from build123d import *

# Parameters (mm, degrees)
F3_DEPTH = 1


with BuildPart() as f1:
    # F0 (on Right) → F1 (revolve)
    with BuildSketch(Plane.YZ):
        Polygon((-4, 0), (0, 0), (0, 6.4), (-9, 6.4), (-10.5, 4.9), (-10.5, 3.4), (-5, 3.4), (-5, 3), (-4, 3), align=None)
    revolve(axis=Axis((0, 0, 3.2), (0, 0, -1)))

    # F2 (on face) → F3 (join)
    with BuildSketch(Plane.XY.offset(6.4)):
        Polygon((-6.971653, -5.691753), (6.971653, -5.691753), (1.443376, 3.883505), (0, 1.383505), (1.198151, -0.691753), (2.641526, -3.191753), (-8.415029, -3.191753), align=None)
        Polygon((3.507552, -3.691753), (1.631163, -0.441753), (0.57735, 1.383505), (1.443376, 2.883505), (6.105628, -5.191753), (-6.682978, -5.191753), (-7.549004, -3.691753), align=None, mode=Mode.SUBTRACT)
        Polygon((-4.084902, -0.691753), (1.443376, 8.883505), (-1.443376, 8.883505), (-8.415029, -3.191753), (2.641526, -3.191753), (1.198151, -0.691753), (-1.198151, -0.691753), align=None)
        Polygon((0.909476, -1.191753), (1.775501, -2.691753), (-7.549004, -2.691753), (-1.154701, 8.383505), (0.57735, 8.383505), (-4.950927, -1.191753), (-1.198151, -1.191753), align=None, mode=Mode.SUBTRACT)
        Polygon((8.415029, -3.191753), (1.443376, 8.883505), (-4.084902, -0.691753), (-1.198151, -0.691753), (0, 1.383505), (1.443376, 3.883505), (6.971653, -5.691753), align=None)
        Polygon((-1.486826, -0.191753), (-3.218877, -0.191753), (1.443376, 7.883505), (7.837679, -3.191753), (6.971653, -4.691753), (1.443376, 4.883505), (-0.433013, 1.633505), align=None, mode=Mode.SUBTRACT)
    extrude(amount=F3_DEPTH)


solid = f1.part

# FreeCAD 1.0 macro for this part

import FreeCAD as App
import Part
import Sketcher

V = App.Vector
Q = App.Units.Quantity

doc = App.newDocument("Part")
body = doc.addObject("PartDesign::Body", "Body")

# Sketch on YZ plane
sketch1 = body.newObject("Sketcher::SketchObject", "Sketch")
sketch1.AttachmentSupport = (doc.getObject("YZ_Plane"), [""])
sketch1.MapMode = "FlatFace"
sketch1.addGeometry([
    Part.LineSegment(V(-4, 0, 0), V(0, 0, 0)),  # 0
    Part.LineSegment(V(0, 0, 0), V(0, 6.4, 0)),  # 1
    Part.LineSegment(V(0, 6.4, 0), V(-9, 6.4, 0)),  # 2
    Part.LineSegment(V(-9, 6.4, 0), V(-10.5, 4.9, 0)),  # 3
    Part.LineSegment(V(-10.5, 4.9, 0), V(-10.5, 3.4, 0)),  # 4
    Part.LineSegment(V(-10.5, 3.4, 0), V(-5, 3.4, 0)),  # 5
    Part.LineSegment(V(-5, 3.4, 0), V(-5, 3, 0)),  # 6
    Part.LineSegment(V(-5, 3, 0), V(-4, 3, 0)),  # 7
    Part.LineSegment(V(-4, 3, 0), V(-4, 0, 0)),  # 8
], False)
sketch1.addConstraint([
    Sketcher.Constraint("Coincident", 0, 2, 1, 1),
    Sketcher.Constraint("Coincident", 1, 2, 2, 1),
    Sketcher.Constraint("Coincident", 2, 2, 3, 1),
    Sketcher.Constraint("Coincident", 3, 2, 4, 1),
    Sketcher.Constraint("Coincident", 4, 2, 5, 1),
    Sketcher.Constraint("Coincident", 5, 2, 6, 1),
    Sketcher.Constraint("Coincident", 6, 2, 7, 1),
    Sketcher.Constraint("Coincident", 7, 2, 8, 1),
    Sketcher.Constraint("Coincident", 8, 2, 0, 1),
    Sketcher.Constraint("Horizontal", 0),
    Sketcher.Constraint("Vertical", 1),
    Sketcher.Constraint("Horizontal", 2),
    Sketcher.Constraint("Vertical", 4),
    Sketcher.Constraint("Horizontal", 5),
    Sketcher.Constraint("Vertical", 6),
    Sketcher.Constraint("Horizontal", 7),
    Sketcher.Constraint("Vertical", 8),
    Sketcher.Constraint("Coincident", 0, 2, -1, 1),
    Sketcher.Constraint("DistanceX", 0, 1, 0, 2, Q("4 mm")),
    Sketcher.Constraint("DistanceX", 2, 2, 2, 1, Q("9 mm")),
    Sketcher.Constraint("DistanceX", 7, 1, 7, 2, Q("1 mm")),
    Sketcher.Constraint("DistanceY", 8, 2, 8, 1, Q("3 mm")),
    Sketcher.Constraint("Angle", 3, Q("-135 deg")),
    Sketcher.Constraint("DistanceX", 5, 1, 5, 2, Q("5.5 mm")),
    Sketcher.Constraint("DistanceY", 1, 1, 1, 2, Q("6.4 mm")),
    Sketcher.Constraint("DistanceY", 4, 2, 4, 1, Q("1.5 mm")),
])
revolution = body.newObject("PartDesign::Revolution", "Revolution")
revolution.Profile = sketch1
revolution.ReferenceAxis = (sketch1, ["V_Axis"])
revolution.Angle = 360

# Sketch on XY plane
sketch2 = body.newObject("Sketcher::SketchObject", "Sketch001")
sketch2.AttachmentSupport = (doc.getObject("XY_Plane"), [""])
sketch2.MapMode = "FlatFace"
sketch2.AttachmentOffset = App.Placement(V(0, 0, 6.4), App.Rotation())
sketch2.addGeometry([
    Part.LineSegment(V(-7, -5.7, 0), V(7, -5.7, 0)),  # 0
    Part.LineSegment(V(7, -5.7, 0), V(8.4, -3.2, 0)),  # 1
    Part.LineSegment(V(8.4, -3.2, 0), V(1.4, 8.9, 0)),  # 2
    Part.LineSegment(V(1.4, 8.9, 0), V(-1.4, 8.9, 0)),  # 3
    Part.LineSegment(V(-1.4, 8.9, 0), V(-8.4, -3.2, 0)),  # 4
    Part.LineSegment(V(-8.4, -3.2, 0), V(-7, -5.7, 0)),  # 5
    Part.LineSegment(V(-7.5, -3.7, 0), V(3.5, -3.7, 0)),  # 6
    Part.LineSegment(V(3.5, -3.7, 0), V(1.6, -0.4, 0)),  # 7
    Part.LineSegment(V(1.6, -0.4, 0), V(0.6, 1.4, 0)),  # 8
    Part.LineSegment(V(0.6, 1.4, 0), V(1.4, 2.9, 0)),  # 9
    Part.LineSegment(V(1.4, 2.9, 0), V(6.1, -5.2, 0)),  # 10
    Part.LineSegment(V(6.1, -5.2, 0), V(-6.7, -5.2, 0)),  # 11
    Part.LineSegment(V(-6.7, -5.2, 0), V(-7.5, -3.7, 0)),  # 12
    Part.LineSegment(V(0, 1.4, 0), V(1.2, -0.7, 0)),  # 13
    Part.LineSegment(V(1.2, -0.7, 0), V(-1.2, -0.7, 0)),  # 14
    Part.LineSegment(V(-1.2, -0.7, 0), V(0, 1.4, 0)),  # 15
    Part.LineSegment(V(-5, -1.2, 0), V(0.9, -1.2, 0)),  # 16
    Part.LineSegment(V(0.9, -1.2, 0), V(1.8, -2.7, 0)),  # 17
    Part.LineSegment(V(1.8, -2.7, 0), V(-7.5, -2.7, 0)),  # 18
    Part.LineSegment(V(-7.5, -2.7, 0), V(-1.2, 8.4, 0)),  # 19
    Part.LineSegment(V(-1.2, 8.4, 0), V(0.6, 8.4, 0)),  # 20
    Part.LineSegment(V(0.6, 8.4, 0), V(-5, -1.2, 0)),  # 21
    Part.LineSegment(V(-0.4, 1.6, 0), V(-1.5, -0.2, 0)),  # 22
    Part.LineSegment(V(-1.5, -0.2, 0), V(-3.2, -0.2, 0)),  # 23
    Part.LineSegment(V(-3.2, -0.2, 0), V(1.4, 7.9, 0)),  # 24
    Part.LineSegment(V(1.4, 7.9, 0), V(7.8, -3.2, 0)),  # 25
    Part.LineSegment(V(7.8, -3.2, 0), V(7, -4.7, 0)),  # 26
    Part.LineSegment(V(7, -4.7, 0), V(1.4, 4.9, 0)),  # 27
    Part.LineSegment(V(1.4, 4.9, 0), V(-0.4, 1.6, 0)),  # 28
], False)
sketch2.addConstraint([
    Sketcher.Constraint("Coincident", 0, 2, 1, 1),
    Sketcher.Constraint("Coincident", 1, 2, 2, 1),
    Sketcher.Constraint("Coincident", 2, 2, 3, 1),
    Sketcher.Constraint("Coincident", 3, 2, 4, 1),
    Sketcher.Constraint("Coincident", 4, 2, 5, 1),
    Sketcher.Constraint("Coincident", 5, 2, 0, 1),
    Sketcher.Constraint("Coincident", 6, 2, 7, 1),
    Sketcher.Constraint("Coincident", 7, 2, 8, 1),
    Sketcher.Constraint("Coincident", 8, 2, 9, 1),
    Sketcher.Constraint("Coincident", 9, 2, 10, 1),
    Sketcher.Constraint("Coincident", 10, 2, 11, 1),
    Sketcher.Constraint("Coincident", 11, 2, 12, 1),
    Sketcher.Constraint("Coincident", 12, 2, 6, 1),
    Sketcher.Constraint("Coincident", 13, 2, 14, 1),
    Sketcher.Constraint("Coincident", 14, 2, 15, 1),
    Sketcher.Constraint("Coincident", 15, 2, 13, 1),
    Sketcher.Constraint("Coincident", 16, 2, 17, 1),
    Sketcher.Constraint("Coincident", 17, 2, 18, 1),
    Sketcher.Constraint("Coincident", 18, 2, 19, 1),
    Sketcher.Constraint("Coincident", 19, 2, 20, 1),
    Sketcher.Constraint("Coincident", 20, 2, 21, 1),
    Sketcher.Constraint("Coincident", 21, 2, 16, 1),
    Sketcher.Constraint("Coincident", 22, 2, 23, 1),
    Sketcher.Constraint("Coincident", 23, 2, 24, 1),
    Sketcher.Constraint("Coincident", 24, 2, 25, 1),
    Sketcher.Constraint("Coincident", 25, 2, 26, 1),
    Sketcher.Constraint("Coincident", 26, 2, 27, 1),
    Sketcher.Constraint("Coincident", 27, 2, 28, 1),
    Sketcher.Constraint("Coincident", 28, 2, 22, 1),
    Sketcher.Constraint("Horizontal", 0),
    Sketcher.Constraint("Horizontal", 3),
    Sketcher.Constraint("Horizontal", 6),
    Sketcher.Constraint("Horizontal", 11),
    Sketcher.Constraint("Horizontal", 14),
    Sketcher.Constraint("Horizontal", 16),
    Sketcher.Constraint("Horizontal", 18),
    Sketcher.Constraint("Horizontal", 20),
    Sketcher.Constraint("Horizontal", 23),
    Sketcher.Constraint("Symmetric", 1, 2, 4, 2, -2),
    Sketcher.Constraint("PointOnObject", 15, 2, -2),
    Sketcher.Constraint("Parallel", 1, 4),
    Sketcher.Constraint("Parallel", 2, 5),
    Sketcher.Constraint("Parallel", 5, 7),
    Sketcher.Constraint("Parallel", 7, 8),
    Sketcher.Constraint("Parallel", 4, 9),
    Sketcher.Constraint("Parallel", 8, 10),
    Sketcher.Constraint("Parallel", 10, 12),
    Sketcher.Constraint("Parallel", 12, 13),
    Sketcher.Constraint("Parallel", 9, 15),
    Sketcher.Constraint("Parallel", 13, 17),
    Sketcher.Constraint("Parallel", 15, 19),
    Sketcher.Constraint("Parallel", 19, 21),
    Sketcher.Constraint("Parallel", 21, 22),
    Sketcher.Constraint("Parallel", 22, 24),
    Sketcher.Constraint("Parallel", 17, 25),
    Sketcher.Constraint("Parallel", 24, 26),
    Sketcher.Constraint("Parallel", 25, 27),
    Sketcher.Constraint("Parallel", 26, 28),
    Sketcher.Constraint("Horizontal", 8, 2, 15, 2),
    Sketcher.Constraint("Horizontal", 4, 2, 25, 2),
    Sketcher.Constraint("Vertical", 2, 2, 9, 2),
    Sketcher.Constraint("Vertical", 12, 2, 18, 2),
    Sketcher.Constraint("Vertical", 8, 2, 20, 2),
    Sketcher.Constraint("Vertical", 9, 2, 24, 2),
    Sketcher.Constraint("Vertical", 0, 2, 26, 2),
    Sketcher.Constraint("Vertical", 24, 2, 27, 2),
    Sketcher.Constraint("Equal", 20, 23),
    Sketcher.Constraint("Equal", 2, 4),
    Sketcher.Constraint("Equal", 9, 12),
    Sketcher.Constraint("Equal", 12, 17),
    Sketcher.Constraint("Equal", 8, 22),
    Sketcher.Constraint("Equal", 10, 24),
    Sketcher.Constraint("Equal", 19, 25),
    Sketcher.Constraint("Equal", 17, 26),
    Sketcher.Constraint("Angle", 1, Q("59.999994 deg")),
    Sketcher.Constraint("DistanceY", 0, 2, 6, 2, Q("2 mm")),
    Sketcher.Constraint("DistanceY", 9, 2, 2, 2, Q("6 mm")),
    Sketcher.Constraint("DistanceY", 10, 2, 1, 2, Q("2 mm")),
    Sketcher.Constraint("DistanceY", 6, 2, 13, 2, Q("3 mm")),
    Sketcher.Constraint("DistanceY", 6, 2, 17, 2, Q("1 mm")),
    Sketcher.Constraint("DistanceY", 15, 2, 19, 2, Q("7 mm")),
    Sketcher.Constraint("DistanceY", 6, 2, 7, 2, Q("3.25 mm")),
    Sketcher.Constraint("DistanceX", 14, 2, 14, 1, Q("2.396302 mm")),
    Sketcher.Constraint("DistanceX", 3, 2, 3, 1, Q("2.886752 mm")),
    Sketcher.Constraint("DistanceX", -1, 1, 17, 2, Q("1.775501 mm")),
    Sketcher.Constraint("DistanceY", 0, 2, -1, 1, Q("5.691753 mm")),
])
pad1 = body.newObject("PartDesign::Pad", "Pad")
pad1.Profile = sketch2
pad1.Length = 1

doc.recompute()
